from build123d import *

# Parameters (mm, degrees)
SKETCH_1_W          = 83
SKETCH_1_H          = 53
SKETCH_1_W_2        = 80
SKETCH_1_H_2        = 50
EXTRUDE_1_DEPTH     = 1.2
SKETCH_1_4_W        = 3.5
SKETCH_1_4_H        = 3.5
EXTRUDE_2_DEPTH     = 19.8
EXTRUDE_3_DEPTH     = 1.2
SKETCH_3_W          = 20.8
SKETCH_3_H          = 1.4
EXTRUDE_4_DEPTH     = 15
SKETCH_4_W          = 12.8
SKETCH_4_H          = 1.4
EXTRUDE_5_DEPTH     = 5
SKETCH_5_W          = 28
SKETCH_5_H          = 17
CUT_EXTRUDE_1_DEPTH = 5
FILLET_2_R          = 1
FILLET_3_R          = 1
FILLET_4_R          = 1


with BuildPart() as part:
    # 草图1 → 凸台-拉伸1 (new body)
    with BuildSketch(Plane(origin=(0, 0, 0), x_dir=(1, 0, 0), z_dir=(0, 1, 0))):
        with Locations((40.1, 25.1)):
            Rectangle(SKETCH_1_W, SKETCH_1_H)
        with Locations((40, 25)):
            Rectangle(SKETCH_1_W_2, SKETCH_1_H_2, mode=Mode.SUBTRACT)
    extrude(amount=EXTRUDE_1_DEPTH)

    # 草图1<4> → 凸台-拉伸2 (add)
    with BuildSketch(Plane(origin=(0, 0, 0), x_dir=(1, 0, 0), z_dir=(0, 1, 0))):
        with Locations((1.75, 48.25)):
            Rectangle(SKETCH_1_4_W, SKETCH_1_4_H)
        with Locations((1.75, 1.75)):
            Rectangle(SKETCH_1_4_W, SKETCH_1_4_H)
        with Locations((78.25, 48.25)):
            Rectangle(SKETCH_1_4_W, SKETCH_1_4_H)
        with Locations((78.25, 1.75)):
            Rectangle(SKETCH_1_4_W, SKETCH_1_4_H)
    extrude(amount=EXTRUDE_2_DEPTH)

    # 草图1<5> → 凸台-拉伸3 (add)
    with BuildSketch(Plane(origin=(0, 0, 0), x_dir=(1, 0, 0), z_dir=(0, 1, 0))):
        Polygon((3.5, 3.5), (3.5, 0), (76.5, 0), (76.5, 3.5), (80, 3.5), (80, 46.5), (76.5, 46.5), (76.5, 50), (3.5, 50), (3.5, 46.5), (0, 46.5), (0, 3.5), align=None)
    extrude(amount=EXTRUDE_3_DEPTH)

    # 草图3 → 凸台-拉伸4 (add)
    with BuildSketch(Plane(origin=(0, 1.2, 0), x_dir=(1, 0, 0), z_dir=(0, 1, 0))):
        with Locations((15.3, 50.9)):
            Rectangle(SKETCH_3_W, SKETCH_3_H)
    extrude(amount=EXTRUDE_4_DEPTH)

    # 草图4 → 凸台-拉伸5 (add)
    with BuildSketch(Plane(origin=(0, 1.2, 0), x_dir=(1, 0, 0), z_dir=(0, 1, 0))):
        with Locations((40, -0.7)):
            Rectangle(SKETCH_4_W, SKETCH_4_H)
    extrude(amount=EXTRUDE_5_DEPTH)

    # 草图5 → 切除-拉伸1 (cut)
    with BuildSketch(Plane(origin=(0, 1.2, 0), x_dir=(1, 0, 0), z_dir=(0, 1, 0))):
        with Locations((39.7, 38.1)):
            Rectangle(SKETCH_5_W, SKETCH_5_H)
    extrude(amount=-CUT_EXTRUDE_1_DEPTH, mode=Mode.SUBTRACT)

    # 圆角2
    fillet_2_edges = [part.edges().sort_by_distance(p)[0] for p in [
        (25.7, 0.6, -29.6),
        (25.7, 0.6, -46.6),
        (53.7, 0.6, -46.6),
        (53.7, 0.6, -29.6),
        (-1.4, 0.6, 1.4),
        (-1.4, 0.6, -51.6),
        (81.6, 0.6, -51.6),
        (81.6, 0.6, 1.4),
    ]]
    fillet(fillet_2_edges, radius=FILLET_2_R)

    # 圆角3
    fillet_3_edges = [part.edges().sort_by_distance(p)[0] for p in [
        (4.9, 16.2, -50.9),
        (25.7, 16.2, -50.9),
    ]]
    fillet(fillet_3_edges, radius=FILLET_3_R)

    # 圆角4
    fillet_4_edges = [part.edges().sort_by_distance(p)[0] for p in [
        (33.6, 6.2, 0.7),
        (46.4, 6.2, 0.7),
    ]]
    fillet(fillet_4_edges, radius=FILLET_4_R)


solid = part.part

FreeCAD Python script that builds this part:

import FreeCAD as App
import Part
import Sketcher


def edges_at(feature, points):
    """Names of the edges that pass closest to the given points."""
    edges = feature.Shape.Edges
    near = lambda p: min(range(len(edges)), key=lambda i: edges[i].distToShape(Part.Vertex(*p))[0])
    return sorted({f"Edge{near(p) + 1}" for p in points})

doc = App.newDocument("Part")
body = doc.addObject("PartDesign::Body", "Body")

# Sketch on XZ plane
sketch1 = doc.addObject("Sketcher::SketchObject", "Sketch")
body.addObject(sketch1)
sketch1.AttachmentSupport = (doc.XZ_Plane, [""])
sketch1.MapMode = "FlatFace"
sketch1.addGeometry([
    Part.LineSegment(App.Vector(-1, -52, 0), App.Vector(-1, 1, 0)),  # 0
    Part.LineSegment(App.Vector(-1, 1, 0), App.Vector(82, 1, 0)),  # 1
    Part.LineSegment(App.Vector(82, 1, 0), App.Vector(82, -52, 0)),  # 2
    Part.LineSegment(App.Vector(82, -52, 0), App.Vector(-1, -52, 0)),  # 3
    Part.LineSegment(App.Vector(80, 0, 0), App.Vector(0, 0, 0)),  # 4
    Part.LineSegment(App.Vector(0, 0, 0), App.Vector(0, -50, 0)),  # 5
    Part.LineSegment(App.Vector(0, -50, 0), App.Vector(80, -50, 0)),  # 6
    Part.LineSegment(App.Vector(80, -50, 0), App.Vector(80, 0, 0)),  # 7
], False)
sketch1.addConstraint([
    Sketcher.Constraint("Coincident", 0, 2, 1, 1),
    Sketcher.Constraint("Coincident", 1, 2, 2, 1),
    Sketcher.Constraint("Coincident", 2, 2, 3, 1),
    Sketcher.Constraint("Coincident", 3, 2, 0, 1),
    Sketcher.Constraint("Coincident", 4, 2, 5, 1),
    Sketcher.Constraint("Coincident", 5, 2, 6, 1),
    Sketcher.Constraint("Coincident", 6, 2, 7, 1),
    Sketcher.Constraint("Coincident", 7, 2, 4, 1),
    Sketcher.Constraint("Vertical", 0),
    Sketcher.Constraint("Horizontal", 1),
    Sketcher.Constraint("Vertical", 2),
    Sketcher.Constraint("Horizontal", 3),
    Sketcher.Constraint("Horizontal", 4),
    Sketcher.Constraint("Vertical", 5),
    Sketcher.Constraint("Horizontal", 6),
    Sketcher.Constraint("Vertical", 7),
    Sketcher.Constraint("Coincident", 4, 2, -1, 1),
    Sketcher.Constraint("DistanceX", 1, 1, 1, 2, 83.0),
    Sketcher.Constraint("DistanceX", 4, 2, 4, 1, 80.0),
    Sketcher.Constraint("DistanceY", 0, 1, 0, 2, 53.0),
    Sketcher.Constraint("DistanceY", 5, 2, 5, 1, 50.0),
    Sketcher.Constraint("DistanceX", 0, 2, -1, 1, 1.4),
    Sketcher.Constraint("DistanceY", -1, 1, 0, 2, 1.4),
])
pad1 = doc.addObject("PartDesign::Pad", "Pad")
body.addObject(pad1)
pad1.Profile = sketch1
pad1.Length = 1.2
pad1.Reversed = True

# Sketch on XZ plane
sketch2 = doc.addObject("Sketcher::SketchObject", "Sketch001")
body.addObject(sketch2)
sketch2.AttachmentSupport = (doc.XZ_Plane, [""])
sketch2.MapMode = "FlatFace"
sketch2.addGeometry([
    Part.LineSegment(App.Vector(0, -50, 0), App.Vector(0, -46.5, 0)),  # 0
    Part.LineSegment(App.Vector(0, -46.5, 0), App.Vector(3.5, -46.5, 0)),  # 1
    Part.LineSegment(App.Vector(3.5, -46.5, 0), App.Vector(3.5, -50, 0)),  # 2
    Part.LineSegment(App.Vector(3.5, -50, 0), App.Vector(0, -50, 0)),  # 3
    Part.LineSegment(App.Vector(0, -3.5, 0), App.Vector(0, 0, 0)),  # 4
    Part.LineSegment(App.Vector(0, 0, 0), App.Vector(3.5, 0, 0)),  # 5
    Part.LineSegment(App.Vector(3.5, 0, 0), App.Vector(3.5, -3.5, 0)),  # 6
    Part.LineSegment(App.Vector(3.5, -3.5, 0), App.Vector(0, -3.5, 0)),  # 7
    Part.LineSegment(App.Vector(76.5, -50, 0), App.Vector(76.5, -46.5, 0)),  # 8
    Part.LineSegment(App.Vector(76.5, -46.5, 0), App.Vector(80, -46.5, 0)),  # 9
    Part.LineSegment(App.Vector(80, -46.5, 0), App.Vector(80, -50, 0)),  # 10
    Part.LineSegment(App.Vector(80, -50, 0), App.Vector(76.5, -50, 0)),  # 11
    Part.LineSegment(App.Vector(76.5, -3.5, 0), App.Vector(76.5, 0, 0)),  # 12
    Part.LineSegment(App.Vector(76.5, 0, 0), App.Vector(80, 0, 0)),  # 13
    Part.LineSegment(App.Vector(80, 0, 0), App.Vector(80, -3.5, 0)),  # 14
    Part.LineSegment(App.Vector(80, -3.5, 0), App.Vector(76.5, -3.5, 0)),  # 15
], False)
sketch2.addConstraint([
    Sketcher.Constraint("Coincident", 0, 2, 1, 1),
    Sketcher.Constraint("Coincident", 1, 2, 2, 1),
    Sketcher.Constraint("Coincident", 2, 2, 3, 1),
    Sketcher.Constraint("Coincident", 3, 2, 0, 1),
    Sketcher.Constraint("Coincident", 4, 2, 5, 1),
    Sketcher.Constraint("Coincident", 5, 2, 6, 1),
    Sketcher.Constraint("Coincident", 6, 2, 7, 1),
    Sketcher.Constraint("Coincident", 7, 2, 4, 1),
    Sketcher.Constraint("Coincident", 8, 2, 9, 1),
    Sketcher.Constraint("Coincident", 9, 2, 10, 1),
    Sketcher.Constraint("Coincident", 10, 2, 11, 1),
    Sketcher.Constraint("Coincident", 11, 2, 8, 1),
    Sketcher.Constraint("Coincident", 12, 2, 13, 1),
    Sketcher.Constraint("Coincident", 13, 2, 14, 1),
    Sketcher.Constraint("Coincident", 14, 2, 15, 1),
    Sketcher.Constraint("Coincident", 15, 2, 12, 1),
    Sketcher.Constraint("Vertical", 0),
    Sketcher.Constraint("Horizontal", 1),
    Sketcher.Constraint("Vertical", 2),
    Sketcher.Constraint("Horizontal", 3),
    Sketcher.Constraint("Vertical", 4),
    Sketcher.Constraint("Horizontal", 5),
    Sketcher.Constraint("Vertical", 6),
    Sketcher.Constraint("Horizontal", 7),
    Sketcher.Constraint("Vertical", 8),
    Sketcher.Constraint("Horizontal", 9),
    Sketcher.Constraint("Vertical", 10),
    Sketcher.Constraint("Horizontal", 11),
    Sketcher.Constraint("Vertical", 12),
    Sketcher.Constraint("Horizontal", 13),
    Sketcher.Constraint("Vertical", 14),
    Sketcher.Constraint("Horizontal", 15),
    Sketcher.Constraint("Coincident", 4, 2, -1, 1),
    Sketcher.Constraint("PointOnObject", 0, 2, -2),
    Sketcher.Constraint("PointOnObject", 12, 2, -1),
    Sketcher.Constraint("Horizontal", 1, 2, 8, 2),
    Sketcher.Constraint("Horizontal", 3, 2, 10, 2),
    Sketcher.Constraint("Horizontal", 7, 2, 14, 2),
    Sketcher.Constraint("Vertical", 2, 2, 5, 2),
    Sketcher.Constraint("Vertical", 11, 2, 12, 2),
    Sketcher.Constraint("Vertical", 10, 2, 13, 2),
    Sketcher.Constraint("Equal", 7, 9),
    Sketcher.Constraint("Equal", 15, 0),
    Sketcher.Constraint("Equal", 2, 4),
    Sketcher.Constraint("DistanceX", 1, 1, 1, 2, 3.5),
    Sketcher.Constraint("DistanceY", 2, 2, -1, 1, 50.0),
    Sketcher.Constraint("DistanceX", -1, 1, 9, 2, 80.0),
])
pad2 = doc.addObject("PartDesign::Pad", "Pad001")
body.addObject(pad2)
pad2.Profile = sketch2
pad2.Length = 19.8
pad2.Reversed = True

# Sketch on XZ plane
sketch3 = doc.addObject("Sketcher::SketchObject", "Sketch002")
body.addObject(sketch3)
sketch3.AttachmentSupport = (doc.XZ_Plane, [""])
sketch3.MapMode = "FlatFace"
sketch3.addGeometry([
    Part.LineSegment(App.Vector(3.5, -3.5, 0), App.Vector(3.5, 0, 0)),  # 0
    Part.LineSegment(App.Vector(3.5, 0, 0), App.Vector(76.5, 0, 0)),  # 1
    Part.LineSegment(App.Vector(76.5, 0, 0), App.Vector(76.5, -3.5, 0)),  # 2
    Part.LineSegment(App.Vector(76.5, -3.5, 0), App.Vector(80, -3.5, 0)),  # 3
    Part.LineSegment(App.Vector(80, -3.5, 0), App.Vector(80, -46.5, 0)),  # 4
    Part.LineSegment(App.Vector(80, -46.5, 0), App.Vector(76.5, -46.5, 0)),  # 5
    Part.LineSegment(App.Vector(76.5, -46.5, 0), App.Vector(76.5, -50, 0)),  # 6
    Part.LineSegment(App.Vector(76.5, -50, 0), App.Vector(3.5, -50, 0)),  # 7
    Part.LineSegment(App.Vector(3.5, -50, 0), App.Vector(3.5, -46.5, 0)),  # 8
    Part.LineSegment(App.Vector(3.5, -46.5, 0), App.Vector(0, -46.5, 0)),  # 9
    Part.LineSegment(App.Vector(0, -46.5, 0), App.Vector(0, -3.5, 0)),  # 10
    Part.LineSegment(App.Vector(0, -3.5, 0), App.Vector(3.5, -3.5, 0)),  # 11
], False)
sketch3.addConstraint([
    Sketcher.Constraint("Coincident", 0, 2, 1, 1),
    Sketcher.Constraint("Coincident", 1, 2, 2, 1),
    Sketcher.Constraint("Coincident", 2, 2, 3, 1),
    Sketcher.Constraint("Coincident", 3, 2, 4, 1),
    Sketcher.Constraint("Coincident", 4, 2, 5, 1),
    Sketcher.Constraint("Coincident", 5, 2, 6, 1),
    Sketcher.Constraint("Coincident", 6, 2, 7, 1),
    Sketcher.Constraint("Coincident", 7, 2, 8, 1),
    Sketcher.Constraint("Coincident", 8, 2, 9, 1),
    Sketcher.Constraint("Coincident", 9, 2, 10, 1),
    Sketcher.Constraint("Coincident", 10, 2, 11, 1),
    Sketcher.Constraint("Coincident", 11, 2, 0, 1),
    Sketcher.Constraint("Vertical", 0),
    Sketcher.Constraint("Horizontal", 1),
    Sketcher.Constraint("Vertical", 2),
    Sketcher.Constraint("Horizontal", 3),
    Sketcher.Constraint("Vertical", 4),
    Sketcher.Constraint("Horizontal", 5),
    Sketcher.Constraint("Vertical", 6),
    Sketcher.Constraint("Horizontal", 7),
    Sketcher.Constraint("Vertical", 8),
    Sketcher.Constraint("Horizontal", 9),
    Sketcher.Constraint("Vertical", 10),
    Sketcher.Constraint("Horizontal", 11),
    Sketcher.Constraint("PointOnObject", 0, 2, -1),
    Sketcher.Constraint("PointOnObject", 9, 2, -2),
    Sketcher.Constraint("Horizontal", 5, 2, 8, 2),
    Sketcher.Constraint("Horizontal", 3, 2, 10, 2),
    Sketcher.Constraint("Vertical", 2, 2, 5, 2),
    Sketcher.Constraint("Vertical", 0, 2, 7, 2),
    Sketcher.Constraint("Equal", 5, 9),
    Sketcher.Constraint("Equal", 11, 0),
    Sketcher.Constraint("Equal", 2, 6),
    Sketcher.Constraint("DistanceX", 1, 1, 1, 2, 73.0),
    Sketcher.Constraint("DistanceY", 4, 2, 4, 1, 43.0),
    Sketcher.Constraint("DistanceX", 3, 1, 3, 2, 3.5),
])
pad3 = doc.addObject("PartDesign::Pad", "Pad002")
body.addObject(pad3)
pad3.Profile = sketch3
pad3.Length = 1.2
pad3.Reversed = True

# Sketch on XZ plane
sketch4 = doc.addObject("Sketcher::SketchObject", "Sketch003")
body.addObject(sketch4)
sketch4.AttachmentSupport = (doc.XZ_Plane, [""])
sketch4.MapMode = "FlatFace"
sketch4.AttachmentOffset = App.Placement(App.Vector(0, 0, -1.2), App.Rotation())
sketch4.addGeometry([
    Part.LineSegment(App.Vector(4.9, -51.6, 0), App.Vector(4.9, -50.2, 0)),
    Part.LineSegment(App.Vector(4.9, -50.2, 0), App.Vector(25.7, -50.2, 0)),
    Part.LineSegment(App.Vector(25.7, -50.2, 0), App.Vector(25.7, -51.6, 0)),
    Part.LineSegment(App.Vector(25.7, -51.6, 0), App.Vector(4.9, -51.6, 0)),
], False)
sketch4.addConstraint([
    Sketcher.Constraint("Coincident", 0, 2, 1, 1),
    Sketcher.Constraint("Coincident", 1, 2, 2, 1),
    Sketcher.Constraint("Coincident", 2, 2, 3, 1),
    Sketcher.Constraint("Coincident", 3, 2, 0, 1),
    Sketcher.Constraint("Vertical", 0),
    Sketcher.Constraint("Horizontal", 1),
    Sketcher.Constraint("Vertical", 2),
    Sketcher.Constraint("Horizontal", 3),
    Sketcher.Constraint("DistanceX", 1, 1, 1, 2, 20.8),
    Sketcher.Constraint("DistanceY", 0, 1, 0, 2, 1.4),
    Sketcher.Constraint("DistanceX", -1, 1, 0, 2, 4.9),
    Sketcher.Constraint("DistanceY", 0, 2, -1, 1, 50.2),
])
pad4 = doc.addObject("PartDesign::Pad", "Pad003")
body.addObject(pad4)
pad4.Profile = sketch4
pad4.Length = 15
pad4.Reversed = True

# Sketch on XZ plane
sketch5 = doc.addObject("Sketcher::SketchObject", "Sketch004")
body.addObject(sketch5)
sketch5.AttachmentSupport = (doc.XZ_Plane, [""])
sketch5.MapMode = "FlatFace"
sketch5.AttachmentOffset = App.Placement(App.Vector(0, 0, -1.2), App.Rotation())
sketch5.addGeometry([
    Part.LineSegment(App.Vector(33.6, 0, 0), App.Vector(33.6, 1.4, 0)),
    Part.LineSegment(App.Vector(33.6, 1.4, 0), App.Vector(46.4, 1.4, 0)),
    Part.LineSegment(App.Vector(46.4, 1.4, 0), App.Vector(46.4, 0, 0)),
    Part.LineSegment(App.Vector(46.4, 0, 0), App.Vector(33.6, 0, 0)),
], False)
sketch5.addConstraint([
    Sketcher.Constraint("Coincident", 0, 2, 1, 1),
    Sketcher.Constraint("Coincident", 1, 2, 2, 1),
    Sketcher.Constraint("Coincident", 2, 2, 3, 1),
    Sketcher.Constraint("Coincident", 3, 2, 0, 1),
    Sketcher.Constraint("Vertical", 0),
    Sketcher.Constraint("Horizontal", 1),
    Sketcher.Constraint("Vertical", 2),
    Sketcher.Constraint("Horizontal", 3),
    Sketcher.Constraint("PointOnObject", 2, 2, -1),
    Sketcher.Constraint("DistanceX", 1, 1, 1, 2, 12.8),
    Sketcher.Constraint("DistanceY", 0, 1, 0, 2, 1.4),
    Sketcher.Constraint("DistanceX", -1, 1, 0, 2, 33.6),
])
pad5 = doc.addObject("PartDesign::Pad", "Pad004")
body.addObject(pad5)
pad5.Profile = sketch5
pad5.Length = 5
pad5.Reversed = True

# Sketch on XZ plane
sketch6 = doc.addObject("Sketcher::SketchObject", "Sketch005")
body.addObject(sketch6)
sketch6.AttachmentSupport = (doc.XZ_Plane, [""])
sketch6.MapMode = "FlatFace"
sketch6.AttachmentOffset = App.Placement(App.Vector(0, 0, -1.2), App.Rotation())
sketch6.addGeometry([
    Part.LineSegment(App.Vector(26, -47, 0), App.Vector(26, -30, 0)),
    Part.LineSegment(App.Vector(26, -30, 0), App.Vector(54, -30, 0)),
    Part.LineSegment(App.Vector(54, -30, 0), App.Vector(54, -47, 0)),
    Part.LineSegment(App.Vector(54, -47, 0), App.Vector(26, -47, 0)),
], False)
sketch6.addConstraint([
    Sketcher.Constraint("Coincident", 0, 2, 1, 1),
    Sketcher.Constraint("Coincident", 1, 2, 2, 1),
    Sketcher.Constraint("Coincident", 2, 2, 3, 1),
    Sketcher.Constraint("Coincident", 3, 2, 0, 1),
    Sketcher.Constraint("Vertical", 0),
    Sketcher.Constraint("Horizontal", 1),
    Sketcher.Constraint("Vertical", 2),
    Sketcher.Constraint("Horizontal", 3),
    Sketcher.Constraint("DistanceX", 1, 1, 1, 2, 28.0),
    Sketcher.Constraint("DistanceY", 0, 1, 0, 2, 17.0),
    Sketcher.Constraint("DistanceX", -1, 1, 0, 2, 25.7),
    Sketcher.Constraint("DistanceY", 0, 2, -1, 1, 29.6),
])
pocket1 = doc.addObject("PartDesign::Pocket", "Pocket")
body.addObject(pocket1)
pocket1.Profile = sketch6
pocket1.Length = 5
pocket1.Reversed = True
doc.recompute()

fillet = doc.addObject("PartDesign::Fillet", "Fillet")
body.addObject(fillet)
fillet.Base = (pocket1, edges_at(pocket1, [
    (25.7, 0.6, -29.6),
    (25.7, 0.6, -46.6),
    (53.7, 0.6, -46.6),
    (53.7, 0.6, -29.6),
    (-1.4, 0.6, 1.4),
    (-1.4, 0.6, -51.6),
    (81.6, 0.6, -51.6),
    (81.6, 0.6, 1.4),
]))
fillet.Radius = 1
doc.recompute()

fillet2 = doc.addObject("PartDesign::Fillet", "Fillet001")
body.addObject(fillet2)
fillet2.Base = (fillet, edges_at(fillet, [(4.9, 16.2, -50.9), (25.7, 16.2, -50.9)]))
fillet2.Radius = 1
doc.recompute()

fillet3 = doc.addObject("PartDesign::Fillet", "Fillet002")
body.addObject(fillet3)
fillet3.Base = (fillet2, edges_at(fillet2, [(33.6, 6.2, 0.7), (46.4, 6.2, 0.7)]))
fillet3.Radius = 1

doc.recompute()
